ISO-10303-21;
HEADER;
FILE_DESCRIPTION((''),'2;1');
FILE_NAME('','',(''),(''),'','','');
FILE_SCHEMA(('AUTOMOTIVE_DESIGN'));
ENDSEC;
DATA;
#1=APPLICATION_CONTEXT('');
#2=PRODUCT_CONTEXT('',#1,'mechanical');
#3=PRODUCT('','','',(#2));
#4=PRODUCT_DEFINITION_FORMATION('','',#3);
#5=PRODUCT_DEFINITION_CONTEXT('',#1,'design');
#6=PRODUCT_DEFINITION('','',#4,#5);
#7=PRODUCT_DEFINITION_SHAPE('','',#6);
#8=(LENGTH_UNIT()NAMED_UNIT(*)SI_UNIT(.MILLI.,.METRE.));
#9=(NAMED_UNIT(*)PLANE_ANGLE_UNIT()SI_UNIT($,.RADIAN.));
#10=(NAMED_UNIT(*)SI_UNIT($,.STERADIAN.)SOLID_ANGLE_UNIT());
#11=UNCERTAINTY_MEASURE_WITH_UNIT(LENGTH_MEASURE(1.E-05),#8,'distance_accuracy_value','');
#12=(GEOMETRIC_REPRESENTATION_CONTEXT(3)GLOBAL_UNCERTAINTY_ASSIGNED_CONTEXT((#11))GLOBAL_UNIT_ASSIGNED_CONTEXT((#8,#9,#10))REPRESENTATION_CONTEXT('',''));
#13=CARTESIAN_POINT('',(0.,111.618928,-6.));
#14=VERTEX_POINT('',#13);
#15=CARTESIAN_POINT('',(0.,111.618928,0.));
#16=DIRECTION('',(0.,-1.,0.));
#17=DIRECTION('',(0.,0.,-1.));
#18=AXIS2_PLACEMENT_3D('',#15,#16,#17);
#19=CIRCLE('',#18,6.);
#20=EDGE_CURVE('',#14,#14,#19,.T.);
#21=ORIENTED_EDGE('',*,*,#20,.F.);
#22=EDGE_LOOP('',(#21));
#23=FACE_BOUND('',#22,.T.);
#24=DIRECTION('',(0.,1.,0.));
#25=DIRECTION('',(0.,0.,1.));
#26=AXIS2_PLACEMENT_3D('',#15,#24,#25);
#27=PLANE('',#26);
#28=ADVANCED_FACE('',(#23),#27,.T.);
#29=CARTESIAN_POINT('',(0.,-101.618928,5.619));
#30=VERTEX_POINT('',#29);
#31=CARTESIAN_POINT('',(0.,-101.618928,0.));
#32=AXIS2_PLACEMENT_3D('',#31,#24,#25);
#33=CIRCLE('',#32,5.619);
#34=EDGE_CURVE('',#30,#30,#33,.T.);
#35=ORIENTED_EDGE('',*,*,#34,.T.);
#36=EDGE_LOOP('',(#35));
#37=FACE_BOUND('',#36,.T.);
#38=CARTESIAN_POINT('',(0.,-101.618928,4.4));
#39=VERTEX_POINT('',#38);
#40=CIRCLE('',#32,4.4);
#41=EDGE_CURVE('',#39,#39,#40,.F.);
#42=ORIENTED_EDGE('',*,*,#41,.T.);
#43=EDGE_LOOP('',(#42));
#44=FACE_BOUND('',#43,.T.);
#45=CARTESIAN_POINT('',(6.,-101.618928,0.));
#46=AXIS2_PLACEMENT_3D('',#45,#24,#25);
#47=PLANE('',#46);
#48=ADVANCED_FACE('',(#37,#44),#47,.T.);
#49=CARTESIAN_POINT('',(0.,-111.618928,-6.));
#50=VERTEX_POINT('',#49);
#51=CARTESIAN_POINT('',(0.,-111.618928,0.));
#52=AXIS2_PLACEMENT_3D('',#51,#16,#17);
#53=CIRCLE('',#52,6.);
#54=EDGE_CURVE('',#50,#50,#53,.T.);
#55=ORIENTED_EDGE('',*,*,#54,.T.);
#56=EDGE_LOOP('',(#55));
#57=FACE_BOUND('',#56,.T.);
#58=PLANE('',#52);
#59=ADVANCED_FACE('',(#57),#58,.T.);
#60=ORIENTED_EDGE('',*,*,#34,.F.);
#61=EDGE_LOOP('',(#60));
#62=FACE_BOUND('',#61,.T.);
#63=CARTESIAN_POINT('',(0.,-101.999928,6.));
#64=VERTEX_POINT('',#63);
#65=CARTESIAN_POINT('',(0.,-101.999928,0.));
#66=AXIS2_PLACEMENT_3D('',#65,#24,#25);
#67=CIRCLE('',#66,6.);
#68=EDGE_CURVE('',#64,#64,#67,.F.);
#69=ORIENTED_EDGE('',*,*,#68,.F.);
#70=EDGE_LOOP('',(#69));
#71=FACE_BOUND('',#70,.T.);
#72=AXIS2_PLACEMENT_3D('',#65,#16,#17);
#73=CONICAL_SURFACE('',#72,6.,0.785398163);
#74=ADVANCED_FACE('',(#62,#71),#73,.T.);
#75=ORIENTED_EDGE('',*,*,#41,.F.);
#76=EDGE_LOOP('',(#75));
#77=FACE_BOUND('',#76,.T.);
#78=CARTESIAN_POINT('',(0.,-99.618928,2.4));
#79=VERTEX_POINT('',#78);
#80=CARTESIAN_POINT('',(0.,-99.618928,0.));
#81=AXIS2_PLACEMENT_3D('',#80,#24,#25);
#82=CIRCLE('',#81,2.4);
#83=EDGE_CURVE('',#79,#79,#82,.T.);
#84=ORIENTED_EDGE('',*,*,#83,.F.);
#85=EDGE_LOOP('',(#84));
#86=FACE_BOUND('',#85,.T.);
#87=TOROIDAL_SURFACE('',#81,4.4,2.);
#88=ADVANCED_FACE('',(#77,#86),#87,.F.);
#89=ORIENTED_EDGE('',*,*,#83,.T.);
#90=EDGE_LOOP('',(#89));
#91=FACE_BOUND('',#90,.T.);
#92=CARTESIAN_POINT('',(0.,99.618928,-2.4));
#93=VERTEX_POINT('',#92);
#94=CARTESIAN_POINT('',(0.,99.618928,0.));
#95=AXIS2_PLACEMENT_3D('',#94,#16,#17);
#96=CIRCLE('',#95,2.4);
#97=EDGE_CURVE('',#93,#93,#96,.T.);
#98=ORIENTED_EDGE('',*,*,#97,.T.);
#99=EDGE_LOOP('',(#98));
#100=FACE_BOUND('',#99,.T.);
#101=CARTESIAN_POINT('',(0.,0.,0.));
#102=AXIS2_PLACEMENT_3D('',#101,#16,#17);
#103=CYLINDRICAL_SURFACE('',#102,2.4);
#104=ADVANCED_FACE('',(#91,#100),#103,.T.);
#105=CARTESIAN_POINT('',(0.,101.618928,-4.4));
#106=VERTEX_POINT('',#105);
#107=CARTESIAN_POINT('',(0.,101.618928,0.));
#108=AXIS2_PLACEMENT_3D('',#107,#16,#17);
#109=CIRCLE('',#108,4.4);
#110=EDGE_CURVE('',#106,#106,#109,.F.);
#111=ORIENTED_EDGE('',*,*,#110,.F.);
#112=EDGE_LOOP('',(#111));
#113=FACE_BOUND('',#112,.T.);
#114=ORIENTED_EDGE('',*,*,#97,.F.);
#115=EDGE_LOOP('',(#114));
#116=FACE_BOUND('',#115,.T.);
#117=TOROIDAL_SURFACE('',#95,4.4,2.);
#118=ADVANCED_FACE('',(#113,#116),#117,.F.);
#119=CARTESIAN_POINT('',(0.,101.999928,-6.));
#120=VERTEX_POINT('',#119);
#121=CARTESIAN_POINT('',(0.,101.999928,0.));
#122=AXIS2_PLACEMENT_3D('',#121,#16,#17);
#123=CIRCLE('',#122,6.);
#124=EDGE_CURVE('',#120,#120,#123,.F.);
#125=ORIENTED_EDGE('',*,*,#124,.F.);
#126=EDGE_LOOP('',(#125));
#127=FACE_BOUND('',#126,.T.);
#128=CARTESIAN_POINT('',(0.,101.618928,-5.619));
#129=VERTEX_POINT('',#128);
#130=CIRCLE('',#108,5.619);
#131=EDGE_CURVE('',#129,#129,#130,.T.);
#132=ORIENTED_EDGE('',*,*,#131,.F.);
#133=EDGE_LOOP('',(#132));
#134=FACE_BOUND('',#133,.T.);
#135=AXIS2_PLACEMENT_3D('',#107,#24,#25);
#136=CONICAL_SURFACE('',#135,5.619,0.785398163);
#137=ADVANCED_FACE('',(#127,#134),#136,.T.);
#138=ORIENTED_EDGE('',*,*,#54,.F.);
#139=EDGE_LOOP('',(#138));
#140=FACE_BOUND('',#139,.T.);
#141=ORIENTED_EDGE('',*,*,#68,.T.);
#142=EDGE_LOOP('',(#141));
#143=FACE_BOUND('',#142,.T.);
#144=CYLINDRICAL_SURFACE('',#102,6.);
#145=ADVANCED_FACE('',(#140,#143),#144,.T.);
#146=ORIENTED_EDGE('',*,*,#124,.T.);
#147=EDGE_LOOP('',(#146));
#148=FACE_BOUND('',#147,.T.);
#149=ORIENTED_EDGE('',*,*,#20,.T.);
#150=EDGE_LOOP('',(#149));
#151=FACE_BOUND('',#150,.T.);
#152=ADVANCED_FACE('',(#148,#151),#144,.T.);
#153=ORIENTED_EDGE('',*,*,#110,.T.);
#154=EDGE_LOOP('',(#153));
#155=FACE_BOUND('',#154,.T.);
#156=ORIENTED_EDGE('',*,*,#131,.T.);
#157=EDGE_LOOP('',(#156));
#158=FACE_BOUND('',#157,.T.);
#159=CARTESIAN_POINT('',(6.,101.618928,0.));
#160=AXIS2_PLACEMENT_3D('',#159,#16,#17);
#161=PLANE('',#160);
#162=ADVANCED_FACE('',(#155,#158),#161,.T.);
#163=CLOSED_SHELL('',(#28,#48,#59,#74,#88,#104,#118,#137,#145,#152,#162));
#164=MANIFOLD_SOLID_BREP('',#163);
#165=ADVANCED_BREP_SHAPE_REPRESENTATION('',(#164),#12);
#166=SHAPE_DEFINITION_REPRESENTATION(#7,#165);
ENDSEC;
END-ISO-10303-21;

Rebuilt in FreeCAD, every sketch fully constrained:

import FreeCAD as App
import Part
import Sketcher
Q = App.Units.Quantity


def edges_at(feature, points):
    """Names of the edges that pass closest to the given points."""
    edges = feature.Shape.Edges
    near = lambda p: min(range(len(edges)), key=lambda i: edges[i].distToShape(Part.Vertex(*p))[0])
    return sorted({f"Edge{near(p) + 1}" for p in points})

doc = App.newDocument("Part")
body = doc.addObject("PartDesign::Body", "Body")

# Sketch on XY plane
sketch1 = doc.addObject("Sketcher::SketchObject", "Sketch")
body.addObject(sketch1)
sketch1.AttachmentSupport = (doc.XY_Plane, [""])
sketch1.MapMode = "FlatFace"
sketch1.addGeometry([
    Part.LineSegment(App.Vector(0, 111.6, 0), App.Vector(0, -111.6, 0)),  # 0
    Part.LineSegment(App.Vector(0, -111.6, 0), App.Vector(6, -111.6, 0)),  # 1
    Part.LineSegment(App.Vector(6, -111.6, 0), App.Vector(6, -101.6, 0)),  # 2
    Part.LineSegment(App.Vector(6, -101.6, 0), App.Vector(2.4, -101.6, 0)),  # 3
    Part.LineSegment(App.Vector(2.4, -101.6, 0), App.Vector(2.4, 101.6, 0)),  # 4
    Part.LineSegment(App.Vector(2.4, 101.6, 0), App.Vector(6, 101.6, 0)),  # 5
    Part.LineSegment(App.Vector(6, 101.6, 0), App.Vector(6, 111.6, 0)),  # 6
    Part.LineSegment(App.Vector(6, 111.6, 0), App.Vector(0, 111.6, 0)),  # 7
], False)
sketch1.addConstraint([
    Sketcher.Constraint("Coincident", 0, 2, 1, 1),
    Sketcher.Constraint("Coincident", 1, 2, 2, 1),
    Sketcher.Constraint("Coincident", 2, 2, 3, 1),
    Sketcher.Constraint("Coincident", 3, 2, 4, 1),
    Sketcher.Constraint("Coincident", 4, 2, 5, 1),
    Sketcher.Constraint("Coincident", 5, 2, 6, 1),
    Sketcher.Constraint("Coincident", 6, 2, 7, 1),
    Sketcher.Constraint("Coincident", 7, 2, 0, 1),
    Sketcher.Constraint("Vertical", 0),
    Sketcher.Constraint("Horizontal", 1),
    Sketcher.Constraint("Vertical", 2),
    Sketcher.Constraint("Horizontal", 3),
    Sketcher.Constraint("Vertical", 4),
    Sketcher.Constraint("Horizontal", 5),
    Sketcher.Constraint("Vertical", 6),
    Sketcher.Constraint("Horizontal", 7),
    Sketcher.Constraint("Symmetric", 0, 2, 7, 2, -1, 1),
    Sketcher.Constraint("Symmetric", 2, 2, 5, 2, -1),
    Sketcher.Constraint("DistanceX", 1, 1, 1, 2, Q("6 mm")),
    Sketcher.Constraint("DistanceY", 2, 1, 2, 2, Q("10 mm")),
    Sketcher.Constraint("DistanceX", 3, 2, 3, 1, Q("3.6 mm")),
    Sketcher.Constraint("DistanceY", 0, 2, 0, 1, Q("223.237856 mm")),
])
revolution = doc.addObject("PartDesign::Revolution", "Revolution")
body.addObject(revolution)
revolution.Profile = sketch1
revolution.ReferenceAxis = (sketch1, ["V_Axis"])
revolution.Angle = 360
doc.recompute()

fillet = doc.addObject("PartDesign::Fillet", "Fillet")
body.addObject(fillet)
fillet.Base = (revolution, edges_at(revolution, [(0, 101.619, 2.4), (0, -101.619, 2.4)]))
fillet.Radius = 2
doc.recompute()

chamfer = doc.addObject("PartDesign::Chamfer", "Chamfer")
body.addObject(chamfer)
chamfer.Base = (fillet, edges_at(fillet, [(0, -101.619, 6), (0, 101.619, 6)]))
chamfer.Size = 0.381

doc.recompute()
